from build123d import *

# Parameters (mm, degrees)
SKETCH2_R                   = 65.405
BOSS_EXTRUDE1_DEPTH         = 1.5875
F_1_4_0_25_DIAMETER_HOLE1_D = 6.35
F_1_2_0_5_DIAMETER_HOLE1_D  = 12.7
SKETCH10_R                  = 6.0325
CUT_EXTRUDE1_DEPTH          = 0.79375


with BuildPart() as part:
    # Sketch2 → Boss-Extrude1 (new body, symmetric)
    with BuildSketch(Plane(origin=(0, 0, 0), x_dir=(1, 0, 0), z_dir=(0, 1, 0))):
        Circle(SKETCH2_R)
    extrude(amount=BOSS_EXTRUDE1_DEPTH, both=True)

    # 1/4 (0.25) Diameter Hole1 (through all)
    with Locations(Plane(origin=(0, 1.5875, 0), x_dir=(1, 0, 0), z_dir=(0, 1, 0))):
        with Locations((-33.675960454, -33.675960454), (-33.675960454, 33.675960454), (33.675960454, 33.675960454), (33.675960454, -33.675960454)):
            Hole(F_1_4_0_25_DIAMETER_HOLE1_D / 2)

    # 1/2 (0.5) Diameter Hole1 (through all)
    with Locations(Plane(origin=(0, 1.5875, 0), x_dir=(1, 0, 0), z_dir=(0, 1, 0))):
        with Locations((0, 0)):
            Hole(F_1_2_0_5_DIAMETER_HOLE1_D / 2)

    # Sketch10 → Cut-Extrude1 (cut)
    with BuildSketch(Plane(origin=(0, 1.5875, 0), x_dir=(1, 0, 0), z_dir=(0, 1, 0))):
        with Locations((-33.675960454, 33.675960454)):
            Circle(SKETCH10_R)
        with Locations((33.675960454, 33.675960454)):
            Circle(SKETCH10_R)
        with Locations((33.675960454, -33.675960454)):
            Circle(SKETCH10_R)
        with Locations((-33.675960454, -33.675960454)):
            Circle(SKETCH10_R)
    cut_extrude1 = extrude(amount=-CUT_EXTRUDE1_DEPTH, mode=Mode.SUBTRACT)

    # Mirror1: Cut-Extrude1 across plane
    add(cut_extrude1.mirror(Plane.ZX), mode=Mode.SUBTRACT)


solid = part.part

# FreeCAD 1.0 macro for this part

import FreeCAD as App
import Part
import Sketcher
Q = App.Units.Quantity

doc = App.newDocument("Part")
body = doc.addObject("PartDesign::Body", "Body")

# Sketch on XZ plane
sketch1 = body.newObject("Sketcher::SketchObject", "Sketch")
sketch1.AttachmentSupport = (doc.getObject("XZ_Plane"), [""])
sketch1.MapMode = "FlatFace"
sketch1.addGeometry(Part.Circle(App.Vector(0, 0, 0), App.Vector(0, 0, 1), 65), False)
sketch1.addConstraint([
    Sketcher.Constraint("Coincident", 0, 3, -1, 1),
    Sketcher.Constraint("Diameter", 0, Q("5.15 in")),
])
pad1 = body.newObject("PartDesign::Pad", "Pad")
pad1.Profile = sketch1
pad1.Length = Q("0.125 in")
pad1.Midplane = True

# Sketch on XZ plane
sketch2 = body.newObject("Sketcher::SketchObject", "Sketch001")
sketch2.AttachmentSupport = (doc.getObject("XZ_Plane"), [""])
sketch2.MapMode = "FlatFace"
sketch2.AttachmentOffset = App.Placement(App.Vector(0, 0, -0.0625 * 25.4), App.Rotation())
sketch2.addGeometry([
    Part.Circle(App.Vector(-33.7, 33.7, 0), App.Vector(0, 0, 1), 3.2),
    Part.Circle(App.Vector(-33.7, -33.7, 0), App.Vector(0, 0, 1), 3.2),
    Part.Circle(App.Vector(33.7, -33.7, 0), App.Vector(0, 0, 1), 3.2),
    Part.Circle(App.Vector(33.7, 33.7, 0), App.Vector(0, 0, 1), 3.2),
], False)
sketch2.addConstraint([
    Sketcher.Constraint("Equal", 0, 1),
    Sketcher.Constraint("Equal", 1, 2),
    Sketcher.Constraint("Equal", 2, 3),
    Sketcher.Constraint("Symmetric", 0, 3, 2, 3, -1, 1),
    Sketcher.Constraint("Symmetric", 1, 3, 3, 3, -1, 1),
    Sketcher.Constraint("Symmetric", 1, 3, 2, 3, -2),
    Sketcher.Constraint("Diameter", 0, Q("0.25 in")),
    Sketcher.Constraint("DistanceX", 0, 3, -1, 1, Q("33.67596 mm")),
    Sketcher.Constraint("DistanceY", -1, 1, 0, 3, Q("33.67596 mm")),
])
doc.recompute()
hole = body.newObject("PartDesign::Hole", "Hole")
hole.Profile = sketch2
hole.ThreadType = "None"
hole.Diameter = Q("0.25 in")
hole.DepthType = "ThroughAll"
hole.Reversed = True

# Sketch on XZ plane
sketch3 = body.newObject("Sketcher::SketchObject", "Sketch002")
sketch3.AttachmentSupport = (doc.getObject("XZ_Plane"), [""])
sketch3.MapMode = "FlatFace"
sketch3.AttachmentOffset = App.Placement(App.Vector(0, 0, -0.0625 * 25.4), App.Rotation())
sketch3.addGeometry(Part.Circle(App.Vector(0, 0, 0), App.Vector(0, 0, 1), 6), False)
sketch3.addConstraint([
    Sketcher.Constraint("Coincident", 0, 3, -1, 1),
    Sketcher.Constraint("Diameter", 0, Q("0.5 in")),
])
doc.recompute()
hole2 = body.newObject("PartDesign::Hole", "Hole001")
hole2.Profile = sketch3
hole2.ThreadType = "None"
hole2.Diameter = Q("0.5 in")
hole2.DepthType = "ThroughAll"
hole2.Reversed = True

# Sketch on XZ plane
sketch4 = body.newObject("Sketcher::SketchObject", "Sketch003")
sketch4.AttachmentSupport = (doc.getObject("XZ_Plane"), [""])
sketch4.MapMode = "FlatFace"
sketch4.AttachmentOffset = App.Placement(App.Vector(0, 0, -0.0625 * 25.4), App.Rotation())
sketch4.addGeometry([
    Part.Circle(App.Vector(-34, -34, 0), App.Vector(0, 0, 1), 6),
    Part.Circle(App.Vector(34, -34, 0), App.Vector(0, 0, 1), 6),
    Part.Circle(App.Vector(34, 34, 0), App.Vector(0, 0, 1), 6),
    Part.Circle(App.Vector(-34, 34, 0), App.Vector(0, 0, 1), 6),
], False)
sketch4.addConstraint([
    Sketcher.Constraint("Equal", 0, 1),
    Sketcher.Constraint("Equal", 1, 2),
    Sketcher.Constraint("Equal", 2, 3),
    Sketcher.Constraint("Symmetric", 0, 3, 2, 3, -1, 1),
    Sketcher.Constraint("Symmetric", 1, 3, 3, 3, -1, 1),
    Sketcher.Constraint("Symmetric", 0, 3, 1, 3, -2),
    Sketcher.Constraint("Diameter", 0, Q("0.475 in")),
    Sketcher.Constraint("DistanceX", 0, 3, -1, 1, Q("33.67596 mm")),
    Sketcher.Constraint("DistanceY", 0, 3, -1, 1, Q("33.67596 mm")),
])
pocket1 = body.newObject("PartDesign::Pocket", "Pocket")
pocket1.Profile = sketch4
pocket1.Length = Q("0.03125 in")
pocket1.Reversed = True
doc.recompute()

mirrored = body.newObject("PartDesign::Mirrored", "Mirrored")
mirrored.Originals = [pocket1]
mirrored.MirrorPlane = (doc.getObject("XZ_Plane"), [""])
body.Tip = mirrored

doc.recompute()
